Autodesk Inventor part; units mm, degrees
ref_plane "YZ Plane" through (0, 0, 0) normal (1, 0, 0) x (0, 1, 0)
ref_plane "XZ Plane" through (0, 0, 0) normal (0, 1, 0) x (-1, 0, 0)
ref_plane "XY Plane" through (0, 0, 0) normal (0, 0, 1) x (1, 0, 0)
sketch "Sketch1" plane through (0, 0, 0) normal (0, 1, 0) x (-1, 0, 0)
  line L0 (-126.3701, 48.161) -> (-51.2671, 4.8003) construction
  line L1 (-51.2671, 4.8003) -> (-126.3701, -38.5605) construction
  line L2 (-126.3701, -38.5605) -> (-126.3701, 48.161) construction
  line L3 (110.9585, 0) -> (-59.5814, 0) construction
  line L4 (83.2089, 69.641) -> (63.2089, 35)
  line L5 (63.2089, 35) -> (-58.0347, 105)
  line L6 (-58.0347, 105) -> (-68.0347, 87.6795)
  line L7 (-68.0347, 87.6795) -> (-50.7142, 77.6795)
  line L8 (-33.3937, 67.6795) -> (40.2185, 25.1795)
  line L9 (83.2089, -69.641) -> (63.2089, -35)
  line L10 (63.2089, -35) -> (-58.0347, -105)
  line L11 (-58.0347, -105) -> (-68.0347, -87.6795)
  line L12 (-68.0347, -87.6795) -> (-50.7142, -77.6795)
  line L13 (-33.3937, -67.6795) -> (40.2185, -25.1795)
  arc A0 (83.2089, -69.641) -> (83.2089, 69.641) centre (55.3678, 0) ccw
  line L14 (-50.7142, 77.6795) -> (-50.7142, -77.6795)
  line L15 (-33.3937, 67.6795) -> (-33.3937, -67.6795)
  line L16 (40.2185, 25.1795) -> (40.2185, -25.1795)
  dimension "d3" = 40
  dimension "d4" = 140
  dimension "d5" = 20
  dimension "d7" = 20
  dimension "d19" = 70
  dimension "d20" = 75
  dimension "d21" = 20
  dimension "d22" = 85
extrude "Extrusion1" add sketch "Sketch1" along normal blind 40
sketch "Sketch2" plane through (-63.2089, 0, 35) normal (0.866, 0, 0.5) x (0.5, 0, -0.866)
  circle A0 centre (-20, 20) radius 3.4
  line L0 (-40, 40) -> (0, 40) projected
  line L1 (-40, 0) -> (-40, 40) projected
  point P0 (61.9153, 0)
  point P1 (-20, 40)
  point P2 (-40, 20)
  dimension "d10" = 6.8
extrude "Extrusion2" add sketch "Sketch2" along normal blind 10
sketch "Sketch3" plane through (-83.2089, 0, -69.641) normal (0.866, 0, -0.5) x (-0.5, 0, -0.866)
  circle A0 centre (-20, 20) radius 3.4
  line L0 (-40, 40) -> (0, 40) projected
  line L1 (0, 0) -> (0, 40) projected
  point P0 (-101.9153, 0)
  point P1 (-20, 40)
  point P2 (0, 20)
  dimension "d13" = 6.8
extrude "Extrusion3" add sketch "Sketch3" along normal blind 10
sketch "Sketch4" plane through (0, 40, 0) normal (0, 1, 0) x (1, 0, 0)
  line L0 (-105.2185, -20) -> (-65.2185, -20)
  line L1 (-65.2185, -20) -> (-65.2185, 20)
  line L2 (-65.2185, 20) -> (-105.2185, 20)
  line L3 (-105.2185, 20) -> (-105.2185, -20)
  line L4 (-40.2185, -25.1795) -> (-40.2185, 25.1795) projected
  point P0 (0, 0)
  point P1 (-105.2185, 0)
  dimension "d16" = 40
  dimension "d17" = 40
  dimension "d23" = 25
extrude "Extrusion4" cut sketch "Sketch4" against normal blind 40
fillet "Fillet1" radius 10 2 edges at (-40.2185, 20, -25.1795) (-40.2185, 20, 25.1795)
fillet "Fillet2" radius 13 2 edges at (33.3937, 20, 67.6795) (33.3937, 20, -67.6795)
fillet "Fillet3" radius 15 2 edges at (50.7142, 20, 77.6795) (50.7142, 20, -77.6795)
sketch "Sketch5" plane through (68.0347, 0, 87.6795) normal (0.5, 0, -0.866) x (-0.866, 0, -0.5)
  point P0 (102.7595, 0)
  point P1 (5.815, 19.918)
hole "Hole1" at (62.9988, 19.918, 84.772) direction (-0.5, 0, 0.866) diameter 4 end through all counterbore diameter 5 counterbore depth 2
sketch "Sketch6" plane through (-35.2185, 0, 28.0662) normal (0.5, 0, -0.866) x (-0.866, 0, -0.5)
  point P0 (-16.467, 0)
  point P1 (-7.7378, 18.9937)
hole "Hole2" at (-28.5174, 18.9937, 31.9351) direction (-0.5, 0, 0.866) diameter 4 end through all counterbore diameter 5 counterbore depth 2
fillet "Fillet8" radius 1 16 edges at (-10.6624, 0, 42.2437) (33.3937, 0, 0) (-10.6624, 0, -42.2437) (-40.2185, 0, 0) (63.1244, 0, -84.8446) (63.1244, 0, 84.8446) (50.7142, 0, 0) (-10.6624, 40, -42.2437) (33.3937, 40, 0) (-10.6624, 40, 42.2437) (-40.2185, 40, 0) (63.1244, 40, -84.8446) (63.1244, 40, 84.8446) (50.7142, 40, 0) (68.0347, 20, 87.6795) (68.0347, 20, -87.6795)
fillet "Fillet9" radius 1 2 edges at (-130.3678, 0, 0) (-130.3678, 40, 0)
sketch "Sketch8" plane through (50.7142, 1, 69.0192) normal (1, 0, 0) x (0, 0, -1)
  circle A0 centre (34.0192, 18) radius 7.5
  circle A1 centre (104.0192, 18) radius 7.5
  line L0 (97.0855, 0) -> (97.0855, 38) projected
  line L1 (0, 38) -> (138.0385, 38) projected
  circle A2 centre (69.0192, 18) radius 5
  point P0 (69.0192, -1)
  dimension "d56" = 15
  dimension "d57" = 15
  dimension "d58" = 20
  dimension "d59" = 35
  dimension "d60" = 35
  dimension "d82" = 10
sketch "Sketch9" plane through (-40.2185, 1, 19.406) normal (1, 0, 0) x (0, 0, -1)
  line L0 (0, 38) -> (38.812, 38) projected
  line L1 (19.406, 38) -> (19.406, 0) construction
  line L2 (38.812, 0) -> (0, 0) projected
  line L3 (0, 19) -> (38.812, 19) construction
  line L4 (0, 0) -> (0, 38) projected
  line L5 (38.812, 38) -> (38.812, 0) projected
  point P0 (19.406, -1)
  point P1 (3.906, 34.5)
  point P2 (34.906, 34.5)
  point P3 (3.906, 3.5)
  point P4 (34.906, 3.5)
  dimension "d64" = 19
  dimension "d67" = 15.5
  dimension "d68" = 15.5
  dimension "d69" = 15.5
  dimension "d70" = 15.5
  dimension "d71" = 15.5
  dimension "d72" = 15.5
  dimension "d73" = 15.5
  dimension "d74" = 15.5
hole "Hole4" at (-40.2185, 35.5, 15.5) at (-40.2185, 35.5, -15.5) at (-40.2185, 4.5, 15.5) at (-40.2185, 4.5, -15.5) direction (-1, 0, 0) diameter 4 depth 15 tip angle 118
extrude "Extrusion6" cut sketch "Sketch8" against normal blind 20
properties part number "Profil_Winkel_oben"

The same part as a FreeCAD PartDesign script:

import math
import FreeCAD as App
import Part
import Sketcher
from FreeCAD import Vector
Q = App.Units.Quantity


def edges_at(feature, points):
    """Names of the edges that pass closest to the given points."""
    edges = feature.Shape.Edges
    near = lambda p: min(range(len(edges)), key=lambda i: edges[i].distToShape(Part.Vertex(*p))[0])
    return sorted({f"Edge{near(p) + 1}" for p in points})

doc = App.newDocument("Part")
body = doc.addObject("PartDesign::Body", "Body")

# Sketch on XZ plane
sketch1 = doc.addObject("Sketcher::SketchObject", "Sketch")
body.addObject(sketch1)
sketch1.AttachmentSupport = (doc.XZ_Plane, [""])
sketch1.MapMode = "FlatFace"
sketch1.addGeometry(Part.ArcOfCircle(Part.Circle(Vector(-55.3678, 0, 0), Vector(0, 0, 1), 74.999972), math.radians(111.790557), math.radians(248.209443)), False)
sketch1.addGeometry(Part.LineSegment(Vector(-83.2089, 69.641, 0), Vector(-63.2089, 35, 0)), False)
sketch1.addGeometry(Part.LineSegment(Vector(-63.2089, 35, 0), Vector(58.0347, 105, 0)), False)
sketch1.addGeometry(Part.LineSegment(Vector(58.0347, 105, 0), Vector(68.0347, 87.6795, 0)), False)
sketch1.addGeometry(Part.LineSegment(Vector(68.0347, 87.6795, 0), Vector(50.7142, 77.6795, 0)), False)
sketch1.addGeometry(Part.LineSegment(Vector(50.7142, 77.6795, 0), Vector(50.7142, -77.6795, 0)), False)
sketch1.addGeometry(Part.LineSegment(Vector(50.7142, -77.6795, 0), Vector(68.0347, -87.6795, 0)), False)
sketch1.addGeometry(Part.LineSegment(Vector(68.0347, -87.6795, 0), Vector(58.0347, -105, 0)), False)
sketch1.addGeometry(Part.LineSegment(Vector(58.0347, -105, 0), Vector(-63.2089, -35, 0)), False)
sketch1.addGeometry(Part.LineSegment(Vector(-63.2089, -35, 0), Vector(-83.2089, -69.641, 0)), False)
sketch1.addGeometry(Part.LineSegment(Vector(33.3937, -67.6795, 0), Vector(33.3937, 67.6795, 0)), False)
sketch1.addGeometry(Part.LineSegment(Vector(33.3937, 67.6795, 0), Vector(-40.2185, 25.1795, 0)), False)
sketch1.addGeometry(Part.LineSegment(Vector(-40.2185, 25.1795, 0), Vector(-40.2185, -25.1795, 0)), False)
sketch1.addGeometry(Part.LineSegment(Vector(-40.2185, -25.1795, 0), Vector(33.3937, -67.6795, 0)), False)
sketch1.addConstraint(Sketcher.Constraint("Coincident", 0, 1, 1, 1))
sketch1.addConstraint(Sketcher.Constraint("Coincident", 1, 2, 2, 1))
sketch1.addConstraint(Sketcher.Constraint("Coincident", 2, 2, 3, 1))
sketch1.addConstraint(Sketcher.Constraint("Coincident", 3, 2, 4, 1))
sketch1.addConstraint(Sketcher.Constraint("Coincident", 4, 2, 5, 1))
sketch1.addConstraint(Sketcher.Constraint("Coincident", 5, 2, 6, 1))
sketch1.addConstraint(Sketcher.Constraint("Coincident", 6, 2, 7, 1))
sketch1.addConstraint(Sketcher.Constraint("Coincident", 7, 2, 8, 1))
sketch1.addConstraint(Sketcher.Constraint("Coincident", 8, 2, 9, 1))
sketch1.addConstraint(Sketcher.Constraint("Coincident", 9, 2, 0, 2))
sketch1.addConstraint(Sketcher.Constraint("Coincident", 10, 2, 11, 1))
sketch1.addConstraint(Sketcher.Constraint("Coincident", 11, 2, 12, 1))
sketch1.addConstraint(Sketcher.Constraint("Coincident", 12, 2, 13, 1))
sketch1.addConstraint(Sketcher.Constraint("Coincident", 13, 2, 10, 1))
sketch1.addConstraint(Sketcher.Constraint("Vertical", 5))
sketch1.addConstraint(Sketcher.Constraint("Vertical", 10))
sketch1.addConstraint(Sketcher.Constraint("Vertical", 12))
sketch1.addConstraint(Sketcher.Constraint("Symmetric", 3, 2, 6, 2, -1))
sketch1.addConstraint(Sketcher.Constraint("Symmetric", 2, 2, 7, 2, -1))
sketch1.addConstraint(Sketcher.Constraint("Symmetric", 1, 2, 8, 2, -1))
sketch1.addConstraint(Sketcher.Constraint("Symmetric", 0, 1, 9, 2, -1))
sketch1.addConstraint(Sketcher.Constraint("Perpendicular", 1, 2))
sketch1.addConstraint(Sketcher.Constraint("Perpendicular", 2, 3))
sketch1.addConstraint(Sketcher.Constraint("Perpendicular", 3, 4))
sketch1.addConstraint(Sketcher.Constraint("Perpendicular", 6, 7))
sketch1.addConstraint(Sketcher.Constraint("Parallel", 4, 11))
sketch1.addConstraint(Sketcher.Constraint("Perpendicular", 9, 13))
sketch1.addConstraint(Sketcher.Constraint("Equal", 3, 4))
sketch1.addConstraint(Sketcher.Constraint("Radius", 0, Q("75 mm")))
sketch1.addConstraint(Sketcher.Constraint("Distance", 1, Q("40 mm")))
sketch1.addConstraint(Sketcher.Constraint("Distance", 2, Q("140 mm")))
sketch1.addConstraint(Sketcher.Constraint("Distance", 3, Q("20 mm")))
sketch1.addConstraint(Sketcher.Constraint("Distance", 11, Q("85 mm")))
sketch1.addConstraint(Sketcher.Constraint("DistanceY", 1, 2, 2, 2, Q("70 mm")))
sketch1.addConstraint(Sketcher.Constraint("DistanceY", 7, 2, 1, 2, Q("140 mm")))
sketch1.addConstraint(Sketcher.Constraint("DistanceY", 10, 2, 3, 2, Q("20 mm")))
sketch1.addConstraint(Sketcher.Constraint("DistanceY", 6, 2, 13, 2, Q("20 mm")))
sketch1.addConstraint(Sketcher.Constraint("DistanceX", 0, 1, -1, 1, Q("83.209 mm")))
sketch1.addConstraint(Sketcher.Constraint("DistanceX", 10, 2, 3, 2, Q("34.641 mm")))
pad1 = doc.addObject("PartDesign::Pad", "Pad")
body.addObject(pad1)
pad1.Profile = sketch1
pad1.Length = 40
pad1.Reversed = True

# Sketch on an angled plane
sketch2 = doc.addObject("Sketcher::SketchObject", "Sketch001")
body.addObject(sketch2)
sketch2.Placement = App.Placement(Vector(-63.2089, 0, 35), App.Rotation(Vector(0.5, 0, -0.866025404), Vector(0, 1, 0), Vector(0.866025404, 0, 0.5), "ZXY"))
sketch2.addGeometry(Part.Circle(Vector(-20, 20, 0), Vector(0, 0, 1), 3.4), False)
sketch2.addConstraint(Sketcher.Constraint("Diameter", 0, Q("6.8 mm")))
sketch2.addConstraint(Sketcher.Constraint("DistanceX", 0, 3, -1, 1, Q("20 mm")))
sketch2.addConstraint(Sketcher.Constraint("DistanceY", -1, 1, 0, 3, Q("20 mm")))
pad2 = doc.addObject("PartDesign::Pad", "Pad001")
body.addObject(pad2)
pad2.Profile = sketch2
pad2.Length = 10

# Sketch on an angled plane
sketch3 = doc.addObject("Sketcher::SketchObject", "Sketch002")
body.addObject(sketch3)
sketch3.Placement = App.Placement(Vector(-83.2089, 0, -69.641), App.Rotation(Vector(-0.5, 0, -0.866025404), Vector(0, 1, 0), Vector(0.866025404, 0, -0.5), "ZXY"))
sketch3.addGeometry(Part.Circle(Vector(-20, 20, 0), Vector(0, 0, 1), 3.4), False)
sketch3.addConstraint(Sketcher.Constraint("Diameter", 0, Q("6.8 mm")))
sketch3.addConstraint(Sketcher.Constraint("DistanceX", 0, 3, -1, 1, Q("20 mm")))
sketch3.addConstraint(Sketcher.Constraint("DistanceY", -1, 1, 0, 3, Q("20 mm")))
pad3 = doc.addObject("PartDesign::Pad", "Pad002")
body.addObject(pad3)
pad3.Profile = sketch3
pad3.Length = 10

# Sketch on XZ plane
sketch4 = doc.addObject("Sketcher::SketchObject", "Sketch003")
body.addObject(sketch4)
sketch4.AttachmentSupport = (doc.XZ_Plane, [""])
sketch4.MapMode = "FlatFace"
sketch4.AttachmentOffset = App.Placement(Vector(0, 0, -40), App.Rotation())
sketch4.addGeometry(Part.LineSegment(Vector(-105.2185, -20, 0), Vector(-105.2185, 20, 0)), False)
sketch4.addGeometry(Part.LineSegment(Vector(-105.2185, 20, 0), Vector(-65.2185, 20, 0)), False)
sketch4.addGeometry(Part.LineSegment(Vector(-65.2185, 20, 0), Vector(-65.2185, -20, 0)), False)
sketch4.addGeometry(Part.LineSegment(Vector(-65.2185, -20, 0), Vector(-105.2185, -20, 0)), False)
sketch4.addConstraint(Sketcher.Constraint("Coincident", 0, 2, 1, 1))
sketch4.addConstraint(Sketcher.Constraint("Coincident", 1, 2, 2, 1))
sketch4.addConstraint(Sketcher.Constraint("Coincident", 2, 2, 3, 1))
sketch4.addConstraint(Sketcher.Constraint("Coincident", 3, 2, 0, 1))
sketch4.addConstraint(Sketcher.Constraint("Vertical", 0))
sketch4.addConstraint(Sketcher.Constraint("Horizontal", 1))
sketch4.addConstraint(Sketcher.Constraint("Vertical", 2))
sketch4.addConstraint(Sketcher.Constraint("Horizontal", 3))
sketch4.addConstraint(Sketcher.Constraint("Equal", 3, 0))
sketch4.addConstraint(Sketcher.Constraint("DistanceX", 1, 1, 1, 2, Q("40 mm")))
sketch4.addConstraint(Sketcher.Constraint("DistanceY", -1, 1, 0, 2, Q("20 mm")))
sketch4.addConstraint(Sketcher.Constraint("DistanceX", 0, 2, -1, 1, Q("105.2185 mm")))
pocket1 = doc.addObject("PartDesign::Pocket", "Pocket")
body.addObject(pocket1)
pocket1.Profile = sketch4
pocket1.Length = 40
pocket1.Reversed = True
doc.recompute()

fillet = doc.addObject("PartDesign::Fillet", "Fillet")
body.addObject(fillet)
fillet.Base = (pocket1, edges_at(pocket1, [(-40.218, 20, -25.18), (-40.218, 20, 25.18)]))
fillet.Radius = 10
doc.recompute()

fillet2 = doc.addObject("PartDesign::Fillet", "Fillet001")
body.addObject(fillet2)
fillet2.Base = (fillet, edges_at(fillet, [(33.394, 20, 67.68), (33.394, 20, -67.68)]))
fillet2.Radius = 13
doc.recompute()

fillet3 = doc.addObject("PartDesign::Fillet", "Fillet002")
body.addObject(fillet3)
fillet3.Base = (fillet2, edges_at(fillet2, [(50.714, 20, 77.68), (50.714, 20, -77.68)]))
fillet3.Radius = 15

# Sketch on an angled plane
sketch5 = doc.addObject("Sketcher::SketchObject", "Sketch004")
body.addObject(sketch5)
sketch5.Placement = App.Placement(Vector(-20.957653, 0, 36.299719), App.Rotation(Vector(-0.866025404, 0, -0.5), Vector(0, 1, 0), Vector(0.5, 0, -0.866025404), "ZXY"))
sketch5.addGeometry(Part.Circle(Vector(-96.944561, 19.918, 0), Vector(0, 0, 1), 2), False)
sketch5.addConstraint(Sketcher.Constraint("Diameter", 0, Q("4 mm")))
sketch5.addConstraint(Sketcher.Constraint("DistanceY", -1, 1, 0, 3, Q("19.918 mm")))
sketch5.addConstraint(Sketcher.Constraint("DistanceX", 0, 3, -1, 1, Q("96.9446 mm")))
doc.recompute()
hole = doc.addObject("PartDesign::Hole", "Hole")
body.addObject(hole)
hole.Profile = sketch5
hole.ThreadType = "None"
hole.Diameter = 4
hole.DepthType = "ThroughAll"
hole.HoleCutType = "Counterbore"
hole.HoleCutDiameter = 5
hole.HoleCutDepth = 2

# Sketch on an angled plane
sketch6 = doc.addObject("Sketcher::SketchObject", "Sketch005")
body.addObject(sketch6)
sketch6.Placement = App.Placement(Vector(-20.957654, 0, 36.299721), App.Rotation(Vector(-0.866025404, 0, -0.5), Vector(0, 1, 0), Vector(0.5, 0, -0.866025404), "ZXY"))
sketch6.addGeometry(Part.Circle(Vector(8.729243, 18.9937, 0), Vector(0, 0, 1), 2), False)
sketch6.addConstraint(Sketcher.Constraint("Diameter", 0, Q("4 mm")))
sketch6.addConstraint(Sketcher.Constraint("DistanceX", -1, 1, 0, 3, Q("8.7292 mm")))
sketch6.addConstraint(Sketcher.Constraint("DistanceY", -1, 1, 0, 3, Q("18.9937 mm")))
doc.recompute()
hole2 = doc.addObject("PartDesign::Hole", "Hole001")
body.addObject(hole2)
hole2.Profile = sketch6
hole2.ThreadType = "None"
hole2.Diameter = 4
hole2.DepthType = "ThroughAll"
hole2.HoleCutType = "Counterbore"
hole2.HoleCutDiameter = 5
hole2.HoleCutDepth = 2
doc.recompute()

fillet4 = doc.addObject("PartDesign::Fillet", "Fillet003")
body.addObject(fillet4)
fillet4.Base = (hole2, edges_at(hole2, [
    (-10.662, 0, 42.244),
    (33.394, 0, 0),
    (-10.662, 0, -42.244),
    (-40.218, 0, 0),
    (63.124, 0, -84.845),
    (63.124, 0, 84.845),
    (50.714, 0, 0),
    (-10.662, 40, -42.244),
    (33.394, 40, 0),
    (-10.662, 40, 42.244),
    (-40.218, 40, 0),
    (63.124, 40, -84.845),
    (63.124, 40, 84.845),
    (50.714, 40, 0),
    (68.035, 20, 87.68),
    (68.035, 20, -87.68),
]))
fillet4.Radius = 1
doc.recompute()

fillet5 = doc.addObject("PartDesign::Fillet", "Fillet004")
body.addObject(fillet5)
fillet5.Base = (fillet4, edges_at(fillet4, [(-130.368, 0, 0), (-130.368, 40, 0)]))
fillet5.Radius = 1

# Sketch on YZ plane
sketch7 = doc.addObject("Sketcher::SketchObject", "Sketch006")
body.addObject(sketch7)
sketch7.AttachmentSupport = (doc.YZ_Plane, [""])
sketch7.MapMode = "FlatFace"
sketch7.AttachmentOffset = App.Placement(Vector(0, 0, -40.2185), App.Rotation())
sketch7.addGeometry(Part.Circle(Vector(35.5, 15.5, 0), Vector(0, 0, 1), 2), False)
sketch7.addGeometry(Part.Circle(Vector(35.5, -15.5, 0), Vector(0, 0, 1), 2), False)
sketch7.addGeometry(Part.Circle(Vector(4.5, 15.5, 0), Vector(0, 0, 1), 2), False)
sketch7.addGeometry(Part.Circle(Vector(4.5, -15.5, 0), Vector(0, 0, 1), 2), False)
sketch7.addConstraint(Sketcher.Constraint("Equal", 0, 1))
sketch7.addConstraint(Sketcher.Constraint("Equal", 1, 2))
sketch7.addConstraint(Sketcher.Constraint("Equal", 2, 3))
sketch7.addConstraint(Sketcher.Constraint("Symmetric", 0, 3, 1, 3, -1))
sketch7.addConstraint(Sketcher.Constraint("Symmetric", 2, 3, 3, 3, -1))
sketch7.addConstraint(Sketcher.Constraint("Horizontal", 0, 3, 2, 3))
sketch7.addConstraint(Sketcher.Constraint("Diameter", 0, Q("4 mm")))
sketch7.addConstraint(Sketcher.Constraint("DistanceY", 1, 3, 0, 3, Q("31 mm")))
sketch7.addConstraint(Sketcher.Constraint("DistanceX", 2, 3, 0, 3, Q("31 mm")))
sketch7.addConstraint(Sketcher.Constraint("DistanceX", -1, 1, 0, 3, Q("35.5 mm")))
doc.recompute()
hole3 = doc.addObject("PartDesign::Hole", "Hole002")
body.addObject(hole3)
hole3.Profile = sketch7
hole3.ThreadType = "None"
hole3.Diameter = 4
hole3.DepthType = "Dimension"
hole3.Depth = 15
hole3.DrillPoint = "Angled"
hole3.DrillPointAngle = 118

# Sketch on YZ plane
sketch8 = doc.addObject("Sketcher::SketchObject", "Sketch007")
body.addObject(sketch8)
sketch8.AttachmentSupport = (doc.YZ_Plane, [""])
sketch8.MapMode = "FlatFace"
sketch8.AttachmentOffset = App.Placement(Vector(0, 0, 50.7142), App.Rotation())
sketch8.addGeometry(Part.Circle(Vector(19, 35, 0), Vector(0, 0, 1), 7.5), False)
sketch8.addGeometry(Part.Circle(Vector(19, -35, 0), Vector(0, 0, 1), 7.5), False)
sketch8.addGeometry(Part.Circle(Vector(19, 0, 0), Vector(0, 0, 1), 5), False)
sketch8.addConstraint(Sketcher.Constraint("Equal", 0, 1))
sketch8.addConstraint(Sketcher.Constraint("Symmetric", 0, 3, 1, 3, -1))
sketch8.addConstraint(Sketcher.Constraint("PointOnObject", 2, 3, -1))
sketch8.addConstraint(Sketcher.Constraint("Vertical", 1, 3, 2, 3))
sketch8.addConstraint(Sketcher.Constraint("Diameter", 0, Q("15 mm")))
sketch8.addConstraint(Sketcher.Constraint("Diameter", 2, Q("10 mm")))
sketch8.addConstraint(Sketcher.Constraint("DistanceY", -1, 1, 0, 3, Q("35 mm")))
sketch8.addConstraint(Sketcher.Constraint("DistanceX", -1, 1, 0, 3, Q("19 mm")))
pocket2 = doc.addObject("PartDesign::Pocket", "Pocket001")
body.addObject(pocket2)
pocket2.Profile = sketch8
pocket2.Length = 20

doc.recompute()
